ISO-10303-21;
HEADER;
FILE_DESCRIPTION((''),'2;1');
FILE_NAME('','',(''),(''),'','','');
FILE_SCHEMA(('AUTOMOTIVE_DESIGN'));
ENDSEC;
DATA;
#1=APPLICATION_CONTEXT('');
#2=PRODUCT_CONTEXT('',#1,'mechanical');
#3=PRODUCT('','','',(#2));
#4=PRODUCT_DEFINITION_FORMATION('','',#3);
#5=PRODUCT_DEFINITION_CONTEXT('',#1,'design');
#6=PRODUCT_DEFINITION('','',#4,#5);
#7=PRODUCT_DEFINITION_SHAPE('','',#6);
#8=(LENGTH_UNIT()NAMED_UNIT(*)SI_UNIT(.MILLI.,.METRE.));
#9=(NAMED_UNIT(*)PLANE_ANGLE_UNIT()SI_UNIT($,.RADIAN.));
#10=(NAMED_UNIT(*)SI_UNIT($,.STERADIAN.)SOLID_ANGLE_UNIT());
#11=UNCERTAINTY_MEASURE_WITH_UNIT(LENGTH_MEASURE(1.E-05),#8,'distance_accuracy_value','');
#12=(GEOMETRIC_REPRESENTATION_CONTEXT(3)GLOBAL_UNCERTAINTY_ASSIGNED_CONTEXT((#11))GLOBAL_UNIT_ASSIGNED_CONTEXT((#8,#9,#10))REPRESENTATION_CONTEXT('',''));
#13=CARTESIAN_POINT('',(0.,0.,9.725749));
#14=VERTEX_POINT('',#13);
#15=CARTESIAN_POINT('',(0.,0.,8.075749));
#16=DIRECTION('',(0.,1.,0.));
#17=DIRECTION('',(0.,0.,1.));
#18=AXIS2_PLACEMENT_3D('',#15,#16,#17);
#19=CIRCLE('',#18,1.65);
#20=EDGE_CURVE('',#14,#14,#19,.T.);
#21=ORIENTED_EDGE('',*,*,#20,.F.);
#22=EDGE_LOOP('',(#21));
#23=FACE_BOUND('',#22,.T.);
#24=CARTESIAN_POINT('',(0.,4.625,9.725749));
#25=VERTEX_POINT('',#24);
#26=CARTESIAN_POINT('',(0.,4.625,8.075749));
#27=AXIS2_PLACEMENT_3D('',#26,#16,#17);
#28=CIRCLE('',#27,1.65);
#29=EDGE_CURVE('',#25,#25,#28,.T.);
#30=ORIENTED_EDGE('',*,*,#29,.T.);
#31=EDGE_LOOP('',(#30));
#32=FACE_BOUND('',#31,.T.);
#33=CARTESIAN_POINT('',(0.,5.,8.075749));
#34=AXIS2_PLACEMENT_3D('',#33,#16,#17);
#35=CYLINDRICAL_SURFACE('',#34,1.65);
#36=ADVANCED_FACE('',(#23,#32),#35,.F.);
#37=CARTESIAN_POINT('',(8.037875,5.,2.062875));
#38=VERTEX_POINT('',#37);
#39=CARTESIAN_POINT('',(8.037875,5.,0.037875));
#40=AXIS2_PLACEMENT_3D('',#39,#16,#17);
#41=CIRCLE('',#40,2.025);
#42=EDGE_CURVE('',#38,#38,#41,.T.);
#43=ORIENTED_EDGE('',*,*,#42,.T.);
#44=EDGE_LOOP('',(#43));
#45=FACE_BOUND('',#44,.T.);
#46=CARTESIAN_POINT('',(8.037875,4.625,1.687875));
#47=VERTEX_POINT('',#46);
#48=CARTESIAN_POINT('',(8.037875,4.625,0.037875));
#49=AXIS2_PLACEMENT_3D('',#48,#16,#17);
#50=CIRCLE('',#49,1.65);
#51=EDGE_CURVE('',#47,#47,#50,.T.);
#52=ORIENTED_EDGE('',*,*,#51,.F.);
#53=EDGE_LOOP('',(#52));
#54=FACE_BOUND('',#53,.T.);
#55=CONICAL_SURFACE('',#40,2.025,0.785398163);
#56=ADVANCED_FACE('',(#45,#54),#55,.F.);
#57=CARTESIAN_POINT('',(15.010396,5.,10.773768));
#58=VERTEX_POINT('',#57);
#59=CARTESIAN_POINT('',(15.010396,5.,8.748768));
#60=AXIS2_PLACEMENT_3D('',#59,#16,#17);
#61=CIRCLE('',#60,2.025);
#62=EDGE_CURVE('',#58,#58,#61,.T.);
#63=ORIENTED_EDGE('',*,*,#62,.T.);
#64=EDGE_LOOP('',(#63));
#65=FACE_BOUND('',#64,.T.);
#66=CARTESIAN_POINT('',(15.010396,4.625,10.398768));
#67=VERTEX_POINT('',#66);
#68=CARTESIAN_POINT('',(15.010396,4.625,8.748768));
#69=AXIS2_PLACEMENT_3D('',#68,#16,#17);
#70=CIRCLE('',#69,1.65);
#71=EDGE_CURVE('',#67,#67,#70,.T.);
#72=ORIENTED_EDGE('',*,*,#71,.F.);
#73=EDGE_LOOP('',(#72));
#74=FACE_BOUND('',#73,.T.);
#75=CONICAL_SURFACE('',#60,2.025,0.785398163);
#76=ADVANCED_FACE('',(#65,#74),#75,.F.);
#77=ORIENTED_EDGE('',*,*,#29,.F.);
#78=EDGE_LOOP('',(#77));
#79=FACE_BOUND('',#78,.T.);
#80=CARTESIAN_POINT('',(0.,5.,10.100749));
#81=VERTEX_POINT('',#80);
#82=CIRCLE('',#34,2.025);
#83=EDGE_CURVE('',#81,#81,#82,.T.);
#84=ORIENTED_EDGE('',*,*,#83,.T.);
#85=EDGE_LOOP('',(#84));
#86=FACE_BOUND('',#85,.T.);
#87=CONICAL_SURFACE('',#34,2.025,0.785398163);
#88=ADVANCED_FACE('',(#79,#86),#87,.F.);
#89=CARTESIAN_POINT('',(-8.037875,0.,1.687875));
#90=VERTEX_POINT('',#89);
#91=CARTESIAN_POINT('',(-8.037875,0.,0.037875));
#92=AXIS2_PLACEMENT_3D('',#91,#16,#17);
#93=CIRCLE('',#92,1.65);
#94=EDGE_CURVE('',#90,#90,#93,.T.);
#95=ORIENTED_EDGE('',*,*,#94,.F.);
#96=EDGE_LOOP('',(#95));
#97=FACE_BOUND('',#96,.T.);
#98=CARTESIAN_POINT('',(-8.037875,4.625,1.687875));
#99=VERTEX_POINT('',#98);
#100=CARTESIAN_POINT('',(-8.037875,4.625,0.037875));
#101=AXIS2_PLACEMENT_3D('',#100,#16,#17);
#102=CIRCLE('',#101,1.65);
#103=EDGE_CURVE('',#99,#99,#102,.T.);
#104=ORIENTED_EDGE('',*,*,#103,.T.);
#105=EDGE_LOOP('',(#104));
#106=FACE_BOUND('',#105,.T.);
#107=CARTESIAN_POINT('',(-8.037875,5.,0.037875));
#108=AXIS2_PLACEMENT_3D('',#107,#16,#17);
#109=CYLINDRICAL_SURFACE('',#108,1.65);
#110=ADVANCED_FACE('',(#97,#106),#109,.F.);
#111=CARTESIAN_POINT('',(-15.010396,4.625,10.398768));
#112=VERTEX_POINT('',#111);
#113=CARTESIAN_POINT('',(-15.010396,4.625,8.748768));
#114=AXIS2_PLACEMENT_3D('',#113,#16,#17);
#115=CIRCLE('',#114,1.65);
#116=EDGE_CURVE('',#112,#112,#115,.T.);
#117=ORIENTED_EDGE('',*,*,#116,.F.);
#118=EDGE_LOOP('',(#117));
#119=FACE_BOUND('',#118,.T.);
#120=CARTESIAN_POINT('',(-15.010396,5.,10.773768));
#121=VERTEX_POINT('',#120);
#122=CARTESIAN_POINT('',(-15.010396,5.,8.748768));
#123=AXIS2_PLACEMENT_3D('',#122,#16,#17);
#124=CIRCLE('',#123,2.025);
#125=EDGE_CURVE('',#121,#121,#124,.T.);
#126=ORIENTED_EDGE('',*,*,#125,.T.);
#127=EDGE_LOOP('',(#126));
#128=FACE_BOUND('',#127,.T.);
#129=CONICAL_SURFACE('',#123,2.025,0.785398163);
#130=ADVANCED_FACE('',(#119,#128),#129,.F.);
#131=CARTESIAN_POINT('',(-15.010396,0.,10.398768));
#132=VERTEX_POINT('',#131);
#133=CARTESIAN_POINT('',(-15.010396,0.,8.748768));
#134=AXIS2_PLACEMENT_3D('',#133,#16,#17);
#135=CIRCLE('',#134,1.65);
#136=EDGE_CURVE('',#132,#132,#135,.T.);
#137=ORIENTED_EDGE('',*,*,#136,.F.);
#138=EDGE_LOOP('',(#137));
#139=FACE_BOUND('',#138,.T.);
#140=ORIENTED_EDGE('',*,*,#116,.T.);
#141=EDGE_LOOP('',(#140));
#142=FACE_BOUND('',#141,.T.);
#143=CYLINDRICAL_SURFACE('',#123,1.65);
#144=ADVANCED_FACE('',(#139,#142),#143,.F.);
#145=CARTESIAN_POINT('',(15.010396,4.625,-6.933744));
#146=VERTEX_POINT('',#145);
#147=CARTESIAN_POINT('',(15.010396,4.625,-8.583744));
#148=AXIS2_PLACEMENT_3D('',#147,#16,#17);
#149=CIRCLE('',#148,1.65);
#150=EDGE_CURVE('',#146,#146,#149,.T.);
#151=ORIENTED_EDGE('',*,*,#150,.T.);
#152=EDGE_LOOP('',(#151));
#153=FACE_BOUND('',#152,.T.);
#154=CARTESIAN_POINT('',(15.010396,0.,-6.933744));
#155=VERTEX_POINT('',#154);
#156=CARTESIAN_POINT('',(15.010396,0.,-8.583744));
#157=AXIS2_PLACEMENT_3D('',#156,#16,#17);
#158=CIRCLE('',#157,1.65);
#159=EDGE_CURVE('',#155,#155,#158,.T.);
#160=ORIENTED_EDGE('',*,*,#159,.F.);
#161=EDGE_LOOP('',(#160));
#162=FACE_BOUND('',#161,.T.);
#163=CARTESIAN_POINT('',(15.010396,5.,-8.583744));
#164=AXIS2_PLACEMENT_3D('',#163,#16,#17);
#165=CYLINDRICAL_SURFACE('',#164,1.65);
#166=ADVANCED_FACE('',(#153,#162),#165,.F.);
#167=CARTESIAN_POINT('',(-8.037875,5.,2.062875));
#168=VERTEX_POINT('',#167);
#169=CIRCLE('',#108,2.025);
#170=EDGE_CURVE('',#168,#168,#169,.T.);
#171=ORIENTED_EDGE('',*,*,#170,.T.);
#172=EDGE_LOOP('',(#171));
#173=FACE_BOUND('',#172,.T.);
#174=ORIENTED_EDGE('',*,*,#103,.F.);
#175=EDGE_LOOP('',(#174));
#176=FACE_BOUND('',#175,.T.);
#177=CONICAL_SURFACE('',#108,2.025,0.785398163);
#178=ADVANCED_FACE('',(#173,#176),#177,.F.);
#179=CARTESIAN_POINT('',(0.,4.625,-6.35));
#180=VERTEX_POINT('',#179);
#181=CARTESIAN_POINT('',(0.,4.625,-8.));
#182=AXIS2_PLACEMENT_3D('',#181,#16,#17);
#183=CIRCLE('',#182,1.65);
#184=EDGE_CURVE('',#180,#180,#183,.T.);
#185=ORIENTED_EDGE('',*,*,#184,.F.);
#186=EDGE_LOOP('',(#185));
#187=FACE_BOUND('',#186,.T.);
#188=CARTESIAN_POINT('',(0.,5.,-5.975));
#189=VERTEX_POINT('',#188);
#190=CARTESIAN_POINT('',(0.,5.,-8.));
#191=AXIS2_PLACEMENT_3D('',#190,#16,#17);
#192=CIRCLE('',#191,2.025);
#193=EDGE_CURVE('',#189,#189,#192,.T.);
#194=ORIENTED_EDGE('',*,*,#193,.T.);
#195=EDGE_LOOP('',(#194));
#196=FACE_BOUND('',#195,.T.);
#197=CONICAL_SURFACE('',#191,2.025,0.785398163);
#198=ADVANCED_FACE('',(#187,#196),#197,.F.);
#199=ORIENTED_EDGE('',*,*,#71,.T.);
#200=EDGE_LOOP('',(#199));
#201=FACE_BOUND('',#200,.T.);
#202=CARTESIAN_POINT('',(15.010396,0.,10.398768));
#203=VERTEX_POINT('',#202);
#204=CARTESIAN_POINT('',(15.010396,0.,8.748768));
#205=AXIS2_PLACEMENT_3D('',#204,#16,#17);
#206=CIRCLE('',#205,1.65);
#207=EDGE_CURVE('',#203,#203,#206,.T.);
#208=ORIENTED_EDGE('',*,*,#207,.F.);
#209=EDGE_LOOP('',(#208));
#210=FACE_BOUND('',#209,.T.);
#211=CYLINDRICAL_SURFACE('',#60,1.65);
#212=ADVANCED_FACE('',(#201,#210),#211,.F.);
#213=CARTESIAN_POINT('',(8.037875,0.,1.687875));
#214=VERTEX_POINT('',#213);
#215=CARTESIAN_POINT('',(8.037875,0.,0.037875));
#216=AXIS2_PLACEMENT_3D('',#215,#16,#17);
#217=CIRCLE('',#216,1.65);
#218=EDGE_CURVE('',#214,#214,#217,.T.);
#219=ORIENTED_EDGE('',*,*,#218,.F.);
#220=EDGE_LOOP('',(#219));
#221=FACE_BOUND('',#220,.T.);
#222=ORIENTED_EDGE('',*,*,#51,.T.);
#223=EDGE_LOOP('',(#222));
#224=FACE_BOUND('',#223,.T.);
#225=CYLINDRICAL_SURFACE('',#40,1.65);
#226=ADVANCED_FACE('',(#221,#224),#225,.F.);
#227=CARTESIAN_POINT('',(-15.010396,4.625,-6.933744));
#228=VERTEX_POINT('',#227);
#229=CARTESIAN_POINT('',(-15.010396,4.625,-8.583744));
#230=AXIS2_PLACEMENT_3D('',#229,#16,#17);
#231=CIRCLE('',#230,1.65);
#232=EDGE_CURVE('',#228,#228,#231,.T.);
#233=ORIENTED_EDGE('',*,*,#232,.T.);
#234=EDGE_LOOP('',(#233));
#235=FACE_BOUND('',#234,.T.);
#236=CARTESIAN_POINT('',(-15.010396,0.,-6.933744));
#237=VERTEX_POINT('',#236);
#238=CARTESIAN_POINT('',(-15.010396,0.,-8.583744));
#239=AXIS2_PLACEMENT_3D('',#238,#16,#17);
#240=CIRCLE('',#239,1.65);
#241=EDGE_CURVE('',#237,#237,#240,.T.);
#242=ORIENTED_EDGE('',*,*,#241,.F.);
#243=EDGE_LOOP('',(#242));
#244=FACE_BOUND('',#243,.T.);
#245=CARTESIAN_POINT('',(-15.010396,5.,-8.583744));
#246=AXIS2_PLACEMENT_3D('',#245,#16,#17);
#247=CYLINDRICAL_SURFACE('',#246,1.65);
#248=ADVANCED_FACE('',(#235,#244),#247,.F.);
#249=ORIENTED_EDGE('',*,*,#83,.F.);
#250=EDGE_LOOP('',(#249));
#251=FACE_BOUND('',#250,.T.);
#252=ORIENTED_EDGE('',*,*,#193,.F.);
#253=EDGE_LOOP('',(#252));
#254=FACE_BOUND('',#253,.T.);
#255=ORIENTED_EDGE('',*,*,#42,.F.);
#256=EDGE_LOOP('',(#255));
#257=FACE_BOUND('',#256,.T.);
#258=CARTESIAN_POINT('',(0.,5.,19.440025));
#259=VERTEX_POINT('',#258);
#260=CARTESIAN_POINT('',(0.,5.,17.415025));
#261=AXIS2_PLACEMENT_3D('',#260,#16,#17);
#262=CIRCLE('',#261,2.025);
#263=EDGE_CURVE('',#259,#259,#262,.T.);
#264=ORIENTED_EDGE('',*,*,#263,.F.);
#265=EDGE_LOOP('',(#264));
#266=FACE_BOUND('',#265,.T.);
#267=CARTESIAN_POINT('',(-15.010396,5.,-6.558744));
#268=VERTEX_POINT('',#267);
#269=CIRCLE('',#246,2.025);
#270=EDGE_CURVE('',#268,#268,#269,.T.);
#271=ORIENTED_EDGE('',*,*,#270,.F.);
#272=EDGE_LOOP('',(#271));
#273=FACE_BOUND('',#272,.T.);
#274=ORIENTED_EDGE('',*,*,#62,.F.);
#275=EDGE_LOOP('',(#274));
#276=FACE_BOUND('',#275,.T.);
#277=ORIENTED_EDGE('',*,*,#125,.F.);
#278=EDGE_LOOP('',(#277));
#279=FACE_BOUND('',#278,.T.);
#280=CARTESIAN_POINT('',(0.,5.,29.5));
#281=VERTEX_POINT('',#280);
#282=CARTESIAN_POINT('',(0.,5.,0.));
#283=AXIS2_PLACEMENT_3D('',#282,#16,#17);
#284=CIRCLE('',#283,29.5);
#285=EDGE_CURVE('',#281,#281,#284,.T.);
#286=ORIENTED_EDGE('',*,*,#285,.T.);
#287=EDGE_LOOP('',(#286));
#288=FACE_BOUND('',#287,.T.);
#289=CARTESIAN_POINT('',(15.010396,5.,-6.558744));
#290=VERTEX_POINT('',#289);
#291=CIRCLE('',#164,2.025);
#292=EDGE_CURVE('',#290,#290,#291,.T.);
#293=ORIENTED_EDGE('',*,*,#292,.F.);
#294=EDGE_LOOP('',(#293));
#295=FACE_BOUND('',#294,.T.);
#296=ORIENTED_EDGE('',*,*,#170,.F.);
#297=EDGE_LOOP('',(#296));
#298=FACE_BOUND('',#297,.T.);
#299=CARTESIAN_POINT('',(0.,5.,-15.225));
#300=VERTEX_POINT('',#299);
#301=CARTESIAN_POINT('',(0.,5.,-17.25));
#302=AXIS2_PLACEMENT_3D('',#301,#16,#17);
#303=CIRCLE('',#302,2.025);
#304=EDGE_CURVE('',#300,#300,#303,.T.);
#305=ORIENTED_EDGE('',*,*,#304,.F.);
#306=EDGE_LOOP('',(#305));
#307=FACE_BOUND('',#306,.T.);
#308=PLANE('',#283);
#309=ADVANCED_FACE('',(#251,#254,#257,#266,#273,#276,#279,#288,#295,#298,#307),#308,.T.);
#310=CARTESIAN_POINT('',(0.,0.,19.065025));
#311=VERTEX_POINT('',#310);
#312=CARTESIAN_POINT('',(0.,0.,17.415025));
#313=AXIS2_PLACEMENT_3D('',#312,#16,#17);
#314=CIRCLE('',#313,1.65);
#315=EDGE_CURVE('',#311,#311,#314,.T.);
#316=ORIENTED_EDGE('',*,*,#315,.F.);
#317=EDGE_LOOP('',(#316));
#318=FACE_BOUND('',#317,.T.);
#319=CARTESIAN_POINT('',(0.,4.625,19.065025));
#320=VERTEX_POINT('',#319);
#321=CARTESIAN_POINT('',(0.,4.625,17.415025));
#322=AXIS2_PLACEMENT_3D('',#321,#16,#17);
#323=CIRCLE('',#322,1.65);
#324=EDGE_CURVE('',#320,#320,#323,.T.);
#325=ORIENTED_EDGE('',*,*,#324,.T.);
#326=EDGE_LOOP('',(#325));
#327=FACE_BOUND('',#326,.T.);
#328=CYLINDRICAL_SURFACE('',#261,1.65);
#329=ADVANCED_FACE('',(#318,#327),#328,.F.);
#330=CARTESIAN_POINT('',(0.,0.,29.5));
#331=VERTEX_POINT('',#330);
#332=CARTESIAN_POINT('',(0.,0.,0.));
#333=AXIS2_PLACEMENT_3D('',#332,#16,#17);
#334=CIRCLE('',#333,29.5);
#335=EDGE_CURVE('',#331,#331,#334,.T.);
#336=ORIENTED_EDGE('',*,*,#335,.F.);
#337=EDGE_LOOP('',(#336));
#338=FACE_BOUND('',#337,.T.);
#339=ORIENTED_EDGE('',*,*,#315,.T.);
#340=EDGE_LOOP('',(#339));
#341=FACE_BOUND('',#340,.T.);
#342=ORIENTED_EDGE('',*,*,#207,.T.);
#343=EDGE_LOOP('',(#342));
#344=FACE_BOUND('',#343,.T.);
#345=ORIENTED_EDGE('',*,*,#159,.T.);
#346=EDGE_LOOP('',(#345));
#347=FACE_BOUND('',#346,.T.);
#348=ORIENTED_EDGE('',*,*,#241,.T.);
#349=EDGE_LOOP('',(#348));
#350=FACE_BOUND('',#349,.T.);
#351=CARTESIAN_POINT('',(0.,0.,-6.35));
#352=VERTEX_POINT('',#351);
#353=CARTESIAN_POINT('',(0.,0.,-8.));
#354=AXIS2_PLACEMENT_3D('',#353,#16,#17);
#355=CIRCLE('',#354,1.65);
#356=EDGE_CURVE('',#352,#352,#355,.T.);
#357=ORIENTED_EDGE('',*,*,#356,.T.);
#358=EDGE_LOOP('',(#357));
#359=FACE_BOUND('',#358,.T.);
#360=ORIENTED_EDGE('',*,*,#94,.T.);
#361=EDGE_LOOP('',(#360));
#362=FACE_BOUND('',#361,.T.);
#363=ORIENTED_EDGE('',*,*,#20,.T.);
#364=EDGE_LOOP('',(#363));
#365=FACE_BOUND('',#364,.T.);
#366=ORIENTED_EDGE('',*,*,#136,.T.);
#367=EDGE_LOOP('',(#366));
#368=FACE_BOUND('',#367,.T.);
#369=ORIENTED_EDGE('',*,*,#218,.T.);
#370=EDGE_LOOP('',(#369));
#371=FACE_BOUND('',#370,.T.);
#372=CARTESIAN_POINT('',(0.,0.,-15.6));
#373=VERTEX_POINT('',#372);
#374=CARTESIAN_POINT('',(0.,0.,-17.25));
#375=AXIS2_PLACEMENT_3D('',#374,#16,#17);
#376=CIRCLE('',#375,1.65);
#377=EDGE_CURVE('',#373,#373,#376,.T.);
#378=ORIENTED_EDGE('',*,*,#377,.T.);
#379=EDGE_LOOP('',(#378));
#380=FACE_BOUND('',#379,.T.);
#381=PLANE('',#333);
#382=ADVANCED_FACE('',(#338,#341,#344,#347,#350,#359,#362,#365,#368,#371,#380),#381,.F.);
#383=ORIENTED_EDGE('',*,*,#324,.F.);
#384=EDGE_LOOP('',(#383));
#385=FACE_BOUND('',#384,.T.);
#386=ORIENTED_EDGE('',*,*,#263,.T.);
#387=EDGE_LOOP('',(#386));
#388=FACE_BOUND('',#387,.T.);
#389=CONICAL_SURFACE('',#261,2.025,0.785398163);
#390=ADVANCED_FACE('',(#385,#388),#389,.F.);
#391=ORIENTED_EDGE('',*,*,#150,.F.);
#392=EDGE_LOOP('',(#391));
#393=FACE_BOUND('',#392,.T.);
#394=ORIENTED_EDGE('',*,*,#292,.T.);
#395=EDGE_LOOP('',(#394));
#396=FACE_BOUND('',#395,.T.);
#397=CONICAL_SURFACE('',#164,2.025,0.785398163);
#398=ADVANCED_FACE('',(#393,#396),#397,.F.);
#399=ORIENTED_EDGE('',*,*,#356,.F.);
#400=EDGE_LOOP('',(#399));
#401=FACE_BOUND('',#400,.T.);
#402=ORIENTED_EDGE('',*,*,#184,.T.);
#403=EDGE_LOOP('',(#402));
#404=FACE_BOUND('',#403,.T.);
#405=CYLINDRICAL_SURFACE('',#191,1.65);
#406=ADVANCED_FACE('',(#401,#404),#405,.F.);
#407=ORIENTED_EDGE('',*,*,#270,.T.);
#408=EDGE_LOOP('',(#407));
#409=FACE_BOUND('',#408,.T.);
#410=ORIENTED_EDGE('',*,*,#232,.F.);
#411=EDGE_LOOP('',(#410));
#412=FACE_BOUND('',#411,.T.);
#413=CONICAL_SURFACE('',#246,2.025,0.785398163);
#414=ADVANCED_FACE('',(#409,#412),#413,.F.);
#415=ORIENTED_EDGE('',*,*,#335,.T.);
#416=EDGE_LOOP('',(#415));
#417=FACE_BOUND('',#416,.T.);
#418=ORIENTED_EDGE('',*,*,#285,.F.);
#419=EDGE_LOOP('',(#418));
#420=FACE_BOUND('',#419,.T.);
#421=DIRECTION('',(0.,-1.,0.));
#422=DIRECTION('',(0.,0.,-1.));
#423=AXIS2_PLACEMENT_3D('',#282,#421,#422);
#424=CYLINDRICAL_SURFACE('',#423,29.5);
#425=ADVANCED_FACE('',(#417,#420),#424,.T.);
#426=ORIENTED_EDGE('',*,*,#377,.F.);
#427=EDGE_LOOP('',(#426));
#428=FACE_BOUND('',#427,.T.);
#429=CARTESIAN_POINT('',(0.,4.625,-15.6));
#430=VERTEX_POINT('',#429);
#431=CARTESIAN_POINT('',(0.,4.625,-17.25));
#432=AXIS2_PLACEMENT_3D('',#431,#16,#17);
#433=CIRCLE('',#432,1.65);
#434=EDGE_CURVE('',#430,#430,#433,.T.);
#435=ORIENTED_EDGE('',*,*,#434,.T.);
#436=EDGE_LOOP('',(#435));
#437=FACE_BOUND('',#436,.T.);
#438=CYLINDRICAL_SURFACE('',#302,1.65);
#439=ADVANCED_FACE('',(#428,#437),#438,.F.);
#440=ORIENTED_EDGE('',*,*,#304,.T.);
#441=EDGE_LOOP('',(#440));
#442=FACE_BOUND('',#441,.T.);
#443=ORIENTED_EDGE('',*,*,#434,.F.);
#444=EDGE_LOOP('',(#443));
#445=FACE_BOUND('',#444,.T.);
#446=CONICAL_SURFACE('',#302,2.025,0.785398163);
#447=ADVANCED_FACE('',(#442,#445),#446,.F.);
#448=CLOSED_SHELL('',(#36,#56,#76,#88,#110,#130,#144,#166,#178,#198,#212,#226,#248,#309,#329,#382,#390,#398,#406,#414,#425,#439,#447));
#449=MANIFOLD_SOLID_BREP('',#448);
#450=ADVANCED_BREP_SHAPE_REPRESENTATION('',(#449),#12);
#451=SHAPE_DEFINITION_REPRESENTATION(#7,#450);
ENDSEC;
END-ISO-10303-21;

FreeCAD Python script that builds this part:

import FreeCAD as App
import Part
import Sketcher
from FreeCAD import Vector
Q = App.Units.Quantity


def add_polygon(sketch, points):
    """Adds a closed chain of lines whose ends are joined by coincident constraints."""
    first, n = sketch.GeometryCount, len(points)
    for a, b in zip(points, points[1:] + points[:1]):
        sketch.addGeometry(Part.LineSegment(App.Vector(*a, 0), App.Vector(*b, 0)), False)
    for i in range(n):
        sketch.addConstraint(Sketcher.Constraint("Coincident", first + i, 2, first + (i + 1) % n, 1))

doc = App.newDocument("Part")
params = doc.addObject("Spreadsheet::Sheet", "Params")
for row, (alias, value) in enumerate([
    ("sketch1_diameter", "59 mm"),
    ("pad1_length", "5 mm"),
    ("groove_angle", "360 deg"),
    ("groove2_angle", "360 deg"),
], start=1):
    params.set(f"A{row}", alias)
    params.set(f"B{row}", "=" + value)
    params.setAlias(f"B{row}", alias)

body = doc.addObject("PartDesign::Body", "Body")

# Sketch on XZ plane
sketch1 = body.newObject("Sketcher::SketchObject", "Sketch")
sketch1.AttachmentSupport = (doc.getObject("XZ_Plane"), [""])
sketch1.MapMode = "FlatFace"
sketch1.addGeometry(Part.Circle(Vector(0, 0, 0), Vector(0, 0, 1), 30), False)
sketch1.addConstraint(Sketcher.Constraint("Coincident", 0, 3, -1, 1))
sketch1.addConstraint(Sketcher.Constraint("Diameter", 0, Q("59 mm")))
sketch1.setExpression("Constraints[1]", "Params.sketch1_diameter")
pad1 = body.newObject("PartDesign::Pad", "Pad")
pad1.Profile = sketch1
pad1.setExpression("Length", "Params.pad1_length")
pad1.Reversed = True

# Sketch on YZ plane
sketch2 = body.newObject("Sketcher::SketchObject", "Sketch001")
sketch2.AttachmentSupport = (doc.getObject("YZ_Plane"), [""])
sketch2.MapMode = "FlatFace"
add_polygon(sketch2, [(-6.1, -8), (5, -8), (5, -6), (4.6, -6.3), (-5.1, -6.3)])  # lines 0-4
sketch2.addGeometry(Part.LineSegment(Vector(5, -8, 0), Vector(-6.1, -8, 0)), True)  # axis
sketch2.addConstraint(Sketcher.Constraint("Horizontal", 0))
sketch2.addConstraint(Sketcher.Constraint("Vertical", 1))
sketch2.addConstraint(Sketcher.Constraint("Horizontal", 3))
sketch2.addConstraint(Sketcher.Constraint("Horizontal", 5))
sketch2.addConstraint(Sketcher.Constraint("Coincident", 5, 1, 0, 2))
sketch2.addConstraint(Sketcher.Constraint("Equal", 0, 5))
sketch2.addConstraint(Sketcher.Constraint("Angle", 2, Q("-135 deg")))
sketch2.addConstraint(Sketcher.Constraint("Angle", 4, Q("-121 deg")))
sketch2.addConstraint(Sketcher.Constraint("DistanceX", -1, 1, 0, 2, Q("5 mm")))
sketch2.addConstraint(Sketcher.Constraint("DistanceY", 0, 2, -1, 1, Q("8 mm")))
sketch2.addConstraint(Sketcher.Constraint("DistanceX", 3, 2, -1, 1, Q("5.1 mm")))
sketch2.addConstraint(Sketcher.Constraint("DistanceX", 3, 2, 3, 1, Q("9.725 mm")))
sketch2.addConstraint(Sketcher.Constraint("DistanceY", 1, 1, 1, 2, Q("2.025 mm")))
groove = body.newObject("PartDesign::Groove", "Groove")
groove.Profile = sketch2
groove.ReferenceAxis = (sketch2, ["Axis0"])
groove.setExpression("Angle", "Params.groove_angle")
doc.recompute()

datumline = body.newObject("PartDesign::Line", "DatumLine")
datumline.Placement = App.Placement(Vector(0, 0, 0.037875), App.Rotation(Vector(0, 0, 1), Vector(0, 1, 0)))
polarpattern = body.newObject("PartDesign::PolarPattern", "PolarPattern")
polarpattern.Originals = [groove]
polarpattern.Axis = (datumline, [""])
polarpattern.Angle = 360
polarpattern.Occurrences = 4
body.Tip = polarpattern

# Sketch on YZ plane
sketch3 = body.newObject("Sketcher::SketchObject", "Sketch002")
sketch3.AttachmentSupport = (doc.getObject("YZ_Plane"), [""])
sketch3.MapMode = "FlatFace"
add_polygon(sketch3, [(-6.1, -17.2), (5, -17.2), (5, -15.2), (4.6, -15.6), (-5.1, -15.6)])  # lines 0-4
sketch3.addGeometry(Part.LineSegment(Vector(5, -17.2, 0), Vector(-6.1, -17.2, 0)), True)  # axis
sketch3.addConstraint(Sketcher.Constraint("Horizontal", 0))
sketch3.addConstraint(Sketcher.Constraint("Vertical", 1))
sketch3.addConstraint(Sketcher.Constraint("Horizontal", 3))
sketch3.addConstraint(Sketcher.Constraint("Horizontal", 5))
sketch3.addConstraint(Sketcher.Constraint("Coincident", 5, 1, 0, 2))
sketch3.addConstraint(Sketcher.Constraint("Equal", 0, 5))
sketch3.addConstraint(Sketcher.Constraint("Angle", 2, Q("-135 deg")))
sketch3.addConstraint(Sketcher.Constraint("Angle", 4, Q("-121 deg")))
sketch3.addConstraint(Sketcher.Constraint("DistanceX", -1, 1, 0, 2, Q("5 mm")))
sketch3.addConstraint(Sketcher.Constraint("DistanceY", 2, 2, -1, 1, Q("15.6 mm")))
sketch3.addConstraint(Sketcher.Constraint("DistanceX", 3, 2, -1, 1, Q("5.1 mm")))
sketch3.addConstraint(Sketcher.Constraint("DistanceX", 3, 2, 3, 1, Q("9.725 mm")))
sketch3.addConstraint(Sketcher.Constraint("DistanceY", 1, 1, 1, 2, Q("2.025 mm")))
groove2 = body.newObject("PartDesign::Groove", "Groove001")
groove2.Profile = sketch3
groove2.ReferenceAxis = (sketch3, ["Axis0"])
groove2.setExpression("Angle", "Params.groove2_angle")
doc.recompute()

datumline2 = body.newObject("PartDesign::Line", "DatumLine001")
datumline2.Placement = App.Placement(Vector(0, 0, 0.082512), App.Rotation(Vector(0, 0, 1), Vector(0, 1, 0)))
polarpattern2 = body.newObject("PartDesign::PolarPattern", "PolarPattern001")
polarpattern2.Originals = [groove2]
polarpattern2.Axis = (datumline2, [""])
polarpattern2.Angle = 360
polarpattern2.Occurrences = 6
body.Tip = polarpattern2

doc.recompute()
